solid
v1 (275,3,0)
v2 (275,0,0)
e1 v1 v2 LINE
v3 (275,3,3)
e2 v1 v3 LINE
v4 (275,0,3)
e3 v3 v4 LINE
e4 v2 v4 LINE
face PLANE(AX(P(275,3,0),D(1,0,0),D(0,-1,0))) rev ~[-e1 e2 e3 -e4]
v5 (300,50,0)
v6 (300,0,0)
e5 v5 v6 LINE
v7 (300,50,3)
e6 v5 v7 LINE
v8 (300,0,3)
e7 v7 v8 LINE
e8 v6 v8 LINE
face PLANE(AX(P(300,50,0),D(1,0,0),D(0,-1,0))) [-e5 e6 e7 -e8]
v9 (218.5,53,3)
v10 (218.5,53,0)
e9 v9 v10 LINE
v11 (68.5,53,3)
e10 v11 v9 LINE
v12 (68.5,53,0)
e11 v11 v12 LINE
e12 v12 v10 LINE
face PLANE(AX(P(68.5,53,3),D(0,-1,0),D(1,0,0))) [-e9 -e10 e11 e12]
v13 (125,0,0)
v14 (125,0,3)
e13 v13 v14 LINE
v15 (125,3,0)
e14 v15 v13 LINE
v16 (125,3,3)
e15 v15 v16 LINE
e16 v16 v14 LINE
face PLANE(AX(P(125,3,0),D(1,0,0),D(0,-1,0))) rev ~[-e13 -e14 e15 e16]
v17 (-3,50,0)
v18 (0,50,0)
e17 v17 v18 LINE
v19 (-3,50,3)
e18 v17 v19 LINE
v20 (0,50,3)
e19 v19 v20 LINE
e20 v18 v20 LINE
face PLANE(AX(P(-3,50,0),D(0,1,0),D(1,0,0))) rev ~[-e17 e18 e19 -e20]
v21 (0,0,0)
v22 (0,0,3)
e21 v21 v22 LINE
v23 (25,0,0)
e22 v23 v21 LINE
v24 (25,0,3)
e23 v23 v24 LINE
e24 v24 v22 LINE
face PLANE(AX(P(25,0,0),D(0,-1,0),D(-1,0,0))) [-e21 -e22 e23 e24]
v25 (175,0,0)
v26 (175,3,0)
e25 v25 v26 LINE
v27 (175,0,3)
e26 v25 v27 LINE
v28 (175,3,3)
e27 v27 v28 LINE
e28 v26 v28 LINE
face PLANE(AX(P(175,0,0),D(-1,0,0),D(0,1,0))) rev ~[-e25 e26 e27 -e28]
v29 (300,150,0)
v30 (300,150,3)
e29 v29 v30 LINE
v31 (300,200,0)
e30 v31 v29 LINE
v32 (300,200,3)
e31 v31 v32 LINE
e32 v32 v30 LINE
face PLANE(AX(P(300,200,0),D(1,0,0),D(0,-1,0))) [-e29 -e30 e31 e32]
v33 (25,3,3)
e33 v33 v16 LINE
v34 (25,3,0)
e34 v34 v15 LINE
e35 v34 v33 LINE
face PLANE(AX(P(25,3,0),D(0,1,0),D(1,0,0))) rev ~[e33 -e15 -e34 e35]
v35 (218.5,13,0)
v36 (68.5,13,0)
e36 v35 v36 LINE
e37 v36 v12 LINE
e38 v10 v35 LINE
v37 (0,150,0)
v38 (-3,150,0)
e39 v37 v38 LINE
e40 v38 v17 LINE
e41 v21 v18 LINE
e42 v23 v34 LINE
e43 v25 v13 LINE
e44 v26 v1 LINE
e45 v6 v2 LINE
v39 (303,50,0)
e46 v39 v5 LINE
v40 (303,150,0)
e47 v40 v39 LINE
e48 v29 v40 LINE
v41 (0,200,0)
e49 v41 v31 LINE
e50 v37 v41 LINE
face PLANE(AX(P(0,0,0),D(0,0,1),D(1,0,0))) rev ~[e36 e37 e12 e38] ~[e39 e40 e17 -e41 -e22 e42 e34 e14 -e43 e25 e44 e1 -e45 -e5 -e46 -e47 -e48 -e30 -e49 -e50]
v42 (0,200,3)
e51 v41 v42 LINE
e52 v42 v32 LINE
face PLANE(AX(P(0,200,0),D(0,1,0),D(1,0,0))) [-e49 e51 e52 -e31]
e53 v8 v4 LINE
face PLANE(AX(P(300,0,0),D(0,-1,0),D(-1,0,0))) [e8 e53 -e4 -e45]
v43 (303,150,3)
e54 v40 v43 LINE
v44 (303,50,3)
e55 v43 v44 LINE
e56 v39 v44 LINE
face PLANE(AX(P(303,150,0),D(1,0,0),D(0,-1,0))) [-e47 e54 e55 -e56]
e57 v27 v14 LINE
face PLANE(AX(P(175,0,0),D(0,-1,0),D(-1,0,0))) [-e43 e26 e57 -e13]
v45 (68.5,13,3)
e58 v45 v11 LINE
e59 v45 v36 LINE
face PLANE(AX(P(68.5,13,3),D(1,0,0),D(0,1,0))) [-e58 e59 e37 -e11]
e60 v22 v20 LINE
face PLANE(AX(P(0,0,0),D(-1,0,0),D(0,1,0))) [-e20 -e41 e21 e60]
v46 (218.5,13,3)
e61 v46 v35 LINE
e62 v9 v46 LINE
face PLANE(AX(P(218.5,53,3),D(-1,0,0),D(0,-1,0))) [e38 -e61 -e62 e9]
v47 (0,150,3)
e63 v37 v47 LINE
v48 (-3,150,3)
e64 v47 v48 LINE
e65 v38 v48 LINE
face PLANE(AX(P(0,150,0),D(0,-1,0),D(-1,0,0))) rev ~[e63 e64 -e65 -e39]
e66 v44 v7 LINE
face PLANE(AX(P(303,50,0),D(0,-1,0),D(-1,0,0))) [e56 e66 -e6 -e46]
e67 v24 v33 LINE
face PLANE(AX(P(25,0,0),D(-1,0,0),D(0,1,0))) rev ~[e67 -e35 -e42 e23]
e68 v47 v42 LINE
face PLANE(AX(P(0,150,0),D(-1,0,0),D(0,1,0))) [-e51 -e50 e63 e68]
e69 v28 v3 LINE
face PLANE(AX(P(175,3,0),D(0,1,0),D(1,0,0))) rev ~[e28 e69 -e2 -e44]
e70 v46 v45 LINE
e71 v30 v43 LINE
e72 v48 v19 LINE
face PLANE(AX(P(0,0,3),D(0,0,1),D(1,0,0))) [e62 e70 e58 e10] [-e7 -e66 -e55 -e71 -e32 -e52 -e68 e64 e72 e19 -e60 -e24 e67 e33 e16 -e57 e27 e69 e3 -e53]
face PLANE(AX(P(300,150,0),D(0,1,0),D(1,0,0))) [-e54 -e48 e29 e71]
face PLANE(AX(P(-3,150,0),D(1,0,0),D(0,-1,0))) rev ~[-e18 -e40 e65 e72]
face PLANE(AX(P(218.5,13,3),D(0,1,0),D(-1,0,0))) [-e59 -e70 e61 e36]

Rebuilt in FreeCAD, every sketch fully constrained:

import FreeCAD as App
import Part
import Sketcher
from FreeCAD import Vector
Q = App.Units.Quantity

doc = App.newDocument("Part")
body = doc.addObject("PartDesign::Body", "Body")

# Sketch on XY plane
sketch1 = doc.addObject("Sketcher::SketchObject", "Sketch")
body.addObject(sketch1)
sketch1.AttachmentSupport = (doc.XY_Plane, [""])
sketch1.MapMode = "FlatFace"
sketch1.addGeometry(Part.LineSegment(Vector(300, 200, 0), Vector(0, 200, 0)), False)
sketch1.addGeometry(Part.LineSegment(Vector(0, 200, 0), Vector(0, 150, 0)), False)
sketch1.addGeometry(Part.LineSegment(Vector(0, 150, 0), Vector(-3, 150, 0)), False)
sketch1.addGeometry(Part.LineSegment(Vector(-3, 150, 0), Vector(-3, 50, 0)), False)
sketch1.addGeometry(Part.LineSegment(Vector(-3, 50, 0), Vector(0, 50, 0)), False)
sketch1.addGeometry(Part.LineSegment(Vector(0, 50, 0), Vector(0, 0, 0)), False)
sketch1.addGeometry(Part.LineSegment(Vector(0, 0, 0), Vector(25, 0, 0)), False)
sketch1.addGeometry(Part.LineSegment(Vector(25, 0, 0), Vector(25, 3, 0)), False)
sketch1.addGeometry(Part.LineSegment(Vector(25, 3, 0), Vector(125, 3, 0)), False)
sketch1.addGeometry(Part.LineSegment(Vector(125, 3, 0), Vector(125, 0, 0)), False)
sketch1.addGeometry(Part.LineSegment(Vector(125, 0, 0), Vector(175, 0, 0)), False)
sketch1.addGeometry(Part.LineSegment(Vector(175, 0, 0), Vector(175, 3, 0)), False)
sketch1.addGeometry(Part.LineSegment(Vector(175, 3, 0), Vector(275, 3, 0)), False)
sketch1.addGeometry(Part.LineSegment(Vector(275, 3, 0), Vector(275, 0, 0)), False)
sketch1.addGeometry(Part.LineSegment(Vector(275, 0, 0), Vector(300, 0, 0)), False)
sketch1.addGeometry(Part.LineSegment(Vector(300, 0, 0), Vector(300, 50, 0)), False)
sketch1.addGeometry(Part.LineSegment(Vector(300, 50, 0), Vector(303, 50, 0)), False)
sketch1.addGeometry(Part.LineSegment(Vector(303, 50, 0), Vector(303, 150, 0)), False)
sketch1.addGeometry(Part.LineSegment(Vector(303, 150, 0), Vector(300, 150, 0)), False)
sketch1.addGeometry(Part.LineSegment(Vector(300, 150, 0), Vector(300, 200, 0)), False)
sketch1.addConstraint(Sketcher.Constraint("Coincident", 0, 2, 1, 1))
sketch1.addConstraint(Sketcher.Constraint("Coincident", 1, 2, 2, 1))
sketch1.addConstraint(Sketcher.Constraint("Coincident", 2, 2, 3, 1))
sketch1.addConstraint(Sketcher.Constraint("Coincident", 3, 2, 4, 1))
sketch1.addConstraint(Sketcher.Constraint("Coincident", 4, 2, 5, 1))
sketch1.addConstraint(Sketcher.Constraint("Coincident", 5, 2, 6, 1))
sketch1.addConstraint(Sketcher.Constraint("Coincident", 6, 2, 7, 1))
sketch1.addConstraint(Sketcher.Constraint("Coincident", 7, 2, 8, 1))
sketch1.addConstraint(Sketcher.Constraint("Coincident", 8, 2, 9, 1))
sketch1.addConstraint(Sketcher.Constraint("Coincident", 9, 2, 10, 1))
sketch1.addConstraint(Sketcher.Constraint("Coincident", 10, 2, 11, 1))
sketch1.addConstraint(Sketcher.Constraint("Coincident", 11, 2, 12, 1))
sketch1.addConstraint(Sketcher.Constraint("Coincident", 12, 2, 13, 1))
sketch1.addConstraint(Sketcher.Constraint("Coincident", 13, 2, 14, 1))
sketch1.addConstraint(Sketcher.Constraint("Coincident", 14, 2, 15, 1))
sketch1.addConstraint(Sketcher.Constraint("Coincident", 15, 2, 16, 1))
sketch1.addConstraint(Sketcher.Constraint("Coincident", 16, 2, 17, 1))
sketch1.addConstraint(Sketcher.Constraint("Coincident", 17, 2, 18, 1))
sketch1.addConstraint(Sketcher.Constraint("Coincident", 18, 2, 19, 1))
sketch1.addConstraint(Sketcher.Constraint("Coincident", 19, 2, 0, 1))
sketch1.addConstraint(Sketcher.Constraint("Horizontal", 0))
sketch1.addConstraint(Sketcher.Constraint("Vertical", 1))
sketch1.addConstraint(Sketcher.Constraint("Horizontal", 2))
sketch1.addConstraint(Sketcher.Constraint("Vertical", 3))
sketch1.addConstraint(Sketcher.Constraint("Horizontal", 4))
sketch1.addConstraint(Sketcher.Constraint("Vertical", 5))
sketch1.addConstraint(Sketcher.Constraint("Horizontal", 6))
sketch1.addConstraint(Sketcher.Constraint("Vertical", 7))
sketch1.addConstraint(Sketcher.Constraint("Horizontal", 8))
sketch1.addConstraint(Sketcher.Constraint("Vertical", 9))
sketch1.addConstraint(Sketcher.Constraint("Horizontal", 10))
sketch1.addConstraint(Sketcher.Constraint("Vertical", 11))
sketch1.addConstraint(Sketcher.Constraint("Horizontal", 12))
sketch1.addConstraint(Sketcher.Constraint("Vertical", 13))
sketch1.addConstraint(Sketcher.Constraint("Horizontal", 14))
sketch1.addConstraint(Sketcher.Constraint("Vertical", 15))
sketch1.addConstraint(Sketcher.Constraint("Horizontal", 16))
sketch1.addConstraint(Sketcher.Constraint("Vertical", 17))
sketch1.addConstraint(Sketcher.Constraint("Horizontal", 18))
sketch1.addConstraint(Sketcher.Constraint("Vertical", 19))
sketch1.addConstraint(Sketcher.Constraint("Coincident", 5, 2, -1, 1))
sketch1.addConstraint(Sketcher.Constraint("PointOnObject", 0, 2, -2))
sketch1.addConstraint(Sketcher.Constraint("PointOnObject", 9, 2, -1))
sketch1.addConstraint(Sketcher.Constraint("PointOnObject", 13, 2, -1))
sketch1.addConstraint(Sketcher.Constraint("Horizontal", 8, 2, 11, 2))
sketch1.addConstraint(Sketcher.Constraint("Horizontal", 4, 2, 15, 2))
sketch1.addConstraint(Sketcher.Constraint("Horizontal", 2, 2, 17, 2))
sketch1.addConstraint(Sketcher.Constraint("Vertical", 15, 2, 18, 2))
sketch1.addConstraint(Sketcher.Constraint("Equal", 8, 12))
sketch1.addConstraint(Sketcher.Constraint("Equal", 6, 14))
sketch1.addConstraint(Sketcher.Constraint("Equal", 4, 16))
sketch1.addConstraint(Sketcher.Constraint("Equal", 10, 1))
sketch1.addConstraint(Sketcher.Constraint("Equal", 12, 3))
sketch1.addConstraint(Sketcher.Constraint("Equal", 1, 5))
sketch1.addConstraint(Sketcher.Constraint("Equal", 18, 7))
sketch1.addConstraint(Sketcher.Constraint("DistanceX", 0, 2, 0, 1, Q("300 mm")))
sketch1.addConstraint(Sketcher.Constraint("DistanceX", 2, 2, 2, 1, Q("3 mm")))
sketch1.addConstraint(Sketcher.Constraint("DistanceX", 8, 1, 8, 2, Q("100 mm")))
sketch1.addConstraint(Sketcher.Constraint("DistanceX", 10, 1, 10, 2, Q("50 mm")))
pad1 = doc.addObject("PartDesign::Pad", "Pad")
body.addObject(pad1)
pad1.Profile = sketch1
pad1.Length = 3

# Sketch on XY plane
sketch2 = doc.addObject("Sketcher::SketchObject", "Sketch001")
body.addObject(sketch2)
sketch2.AttachmentSupport = (doc.XY_Plane, [""])
sketch2.MapMode = "FlatFace"
sketch2.AttachmentOffset = App.Placement(Vector(0, 0, 3), App.Rotation())
sketch2.addGeometry(Part.LineSegment(Vector(218.5, 53, 0), Vector(68.5, 53, 0)), False)
sketch2.addGeometry(Part.LineSegment(Vector(68.5, 53, 0), Vector(68.5, 13, 0)), False)
sketch2.addGeometry(Part.LineSegment(Vector(68.5, 13, 0), Vector(218.5, 13, 0)), False)
sketch2.addGeometry(Part.LineSegment(Vector(218.5, 13, 0), Vector(218.5, 53, 0)), False)
sketch2.addConstraint(Sketcher.Constraint("Coincident", 0, 2, 1, 1))
sketch2.addConstraint(Sketcher.Constraint("Coincident", 1, 2, 2, 1))
sketch2.addConstraint(Sketcher.Constraint("Coincident", 2, 2, 3, 1))
sketch2.addConstraint(Sketcher.Constraint("Coincident", 3, 2, 0, 1))
sketch2.addConstraint(Sketcher.Constraint("Horizontal", 0))
sketch2.addConstraint(Sketcher.Constraint("Vertical", 1))
sketch2.addConstraint(Sketcher.Constraint("Horizontal", 2))
sketch2.addConstraint(Sketcher.Constraint("Vertical", 3))
sketch2.addConstraint(Sketcher.Constraint("DistanceX", 0, 2, 0, 1, Q("150 mm")))
sketch2.addConstraint(Sketcher.Constraint("DistanceY", 1, 2, 1, 1, Q("40 mm")))
sketch2.addConstraint(Sketcher.Constraint("DistanceX", -1, 1, 0, 2, Q("68.5 mm")))
sketch2.addConstraint(Sketcher.Constraint("DistanceY", -1, 1, 0, 2, Q("53 mm")))
pocket1 = doc.addObject("PartDesign::Pocket", "Pocket")
body.addObject(pocket1)
pocket1.Profile = sketch2
pocket1.Length = 3

doc.recompute()
